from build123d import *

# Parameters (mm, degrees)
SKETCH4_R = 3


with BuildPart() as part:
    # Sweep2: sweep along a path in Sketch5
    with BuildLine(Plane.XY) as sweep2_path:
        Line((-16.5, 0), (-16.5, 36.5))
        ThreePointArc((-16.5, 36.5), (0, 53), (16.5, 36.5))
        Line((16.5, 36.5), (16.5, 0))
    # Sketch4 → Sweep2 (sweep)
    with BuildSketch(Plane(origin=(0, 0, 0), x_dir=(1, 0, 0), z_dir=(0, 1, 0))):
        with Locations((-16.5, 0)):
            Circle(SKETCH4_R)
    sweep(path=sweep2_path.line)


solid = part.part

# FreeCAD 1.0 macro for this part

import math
import FreeCAD as App
import Part
import Sketcher

doc = App.newDocument("Part")
params = doc.addObject("Spreadsheet::Sheet", "Params")
for row, (alias, value) in enumerate([
    ("sketch1_diameter", "6 mm"),
    ("sketch2_radius", "16.5 mm"),
    ("sketch2_height", "36.5 mm"),
], start=1):
    params.set(f"A{row}", alias)
    params.set(f"B{row}", "=" + value)
    params.setAlias(f"B{row}", alias)

body = doc.addObject("PartDesign::Body", "Body")

# Sketch on XZ plane
sketch1 = doc.addObject("Sketcher::SketchObject", "Sketch")
body.addObject(sketch1)
sketch1.AttachmentSupport = (doc.XZ_Plane, [""])
sketch1.MapMode = "FlatFace"
sketch1.addGeometry(Part.Circle(App.Vector(-16.5, 0, 0), App.Vector(0, 0, 1), 3), False)
sketch1.addConstraint(Sketcher.Constraint("PointOnObject", 0, 3, -1))
sketch1.addConstraint(Sketcher.Constraint("Diameter", 0, 6.0))
sketch1.addConstraint(Sketcher.Constraint("DistanceX", 0, 3, -1, 1, 16.5))
sketch1.setExpression("Constraints[1]", "Params.sketch1_diameter")

# Sketch on XY plane
sketch2 = doc.addObject("Sketcher::SketchObject", "Sketch001")
body.addObject(sketch2)
sketch2.AttachmentSupport = (doc.XY_Plane, [""])
sketch2.MapMode = "FlatFace"
sketch2.addGeometry(Part.LineSegment(App.Vector(-16, 0, 0), App.Vector(-16, 36, 0)), False)
sketch2.addGeometry(Part.ArcOfCircle(Part.Circle(App.Vector(0, 36, 0), App.Vector(0, 0, 1), 16), math.radians(0), math.radians(180)), False)
sketch2.addGeometry(Part.LineSegment(App.Vector(16, 36, 0), App.Vector(16, 0, 0)), False)
sketch2.addConstraint(Sketcher.Constraint("Tangent", 0, 2, 1, 2))
sketch2.addConstraint(Sketcher.Constraint("Tangent", 1, 1, 2, 1))
sketch2.addConstraint(Sketcher.Constraint("Vertical", 0))
sketch2.addConstraint(Sketcher.Constraint("Vertical", 2))
sketch2.addConstraint(Sketcher.Constraint("Symmetric", 0, 1, 2, 2, -1, 1))
sketch2.addConstraint(Sketcher.Constraint("PointOnObject", 0, 1, -1))
sketch2.addConstraint(Sketcher.Constraint("Radius", 1, 16.5))
sketch2.addConstraint(Sketcher.Constraint("DistanceY", 0, 1, 0, 2, 36.5))
sketch2.setExpression("Constraints[6]", "Params.sketch2_radius")
sketch2.setExpression("Constraints[7]", "Params.sketch2_height")
doc.recompute()

additivepipe = doc.addObject("PartDesign::AdditivePipe", "AdditivePipe")
body.addObject(additivepipe)
additivepipe.Profile = sketch1
additivepipe.Spine = (sketch2, ["Edge1", "Edge2", "Edge3"])

doc.recompute()
